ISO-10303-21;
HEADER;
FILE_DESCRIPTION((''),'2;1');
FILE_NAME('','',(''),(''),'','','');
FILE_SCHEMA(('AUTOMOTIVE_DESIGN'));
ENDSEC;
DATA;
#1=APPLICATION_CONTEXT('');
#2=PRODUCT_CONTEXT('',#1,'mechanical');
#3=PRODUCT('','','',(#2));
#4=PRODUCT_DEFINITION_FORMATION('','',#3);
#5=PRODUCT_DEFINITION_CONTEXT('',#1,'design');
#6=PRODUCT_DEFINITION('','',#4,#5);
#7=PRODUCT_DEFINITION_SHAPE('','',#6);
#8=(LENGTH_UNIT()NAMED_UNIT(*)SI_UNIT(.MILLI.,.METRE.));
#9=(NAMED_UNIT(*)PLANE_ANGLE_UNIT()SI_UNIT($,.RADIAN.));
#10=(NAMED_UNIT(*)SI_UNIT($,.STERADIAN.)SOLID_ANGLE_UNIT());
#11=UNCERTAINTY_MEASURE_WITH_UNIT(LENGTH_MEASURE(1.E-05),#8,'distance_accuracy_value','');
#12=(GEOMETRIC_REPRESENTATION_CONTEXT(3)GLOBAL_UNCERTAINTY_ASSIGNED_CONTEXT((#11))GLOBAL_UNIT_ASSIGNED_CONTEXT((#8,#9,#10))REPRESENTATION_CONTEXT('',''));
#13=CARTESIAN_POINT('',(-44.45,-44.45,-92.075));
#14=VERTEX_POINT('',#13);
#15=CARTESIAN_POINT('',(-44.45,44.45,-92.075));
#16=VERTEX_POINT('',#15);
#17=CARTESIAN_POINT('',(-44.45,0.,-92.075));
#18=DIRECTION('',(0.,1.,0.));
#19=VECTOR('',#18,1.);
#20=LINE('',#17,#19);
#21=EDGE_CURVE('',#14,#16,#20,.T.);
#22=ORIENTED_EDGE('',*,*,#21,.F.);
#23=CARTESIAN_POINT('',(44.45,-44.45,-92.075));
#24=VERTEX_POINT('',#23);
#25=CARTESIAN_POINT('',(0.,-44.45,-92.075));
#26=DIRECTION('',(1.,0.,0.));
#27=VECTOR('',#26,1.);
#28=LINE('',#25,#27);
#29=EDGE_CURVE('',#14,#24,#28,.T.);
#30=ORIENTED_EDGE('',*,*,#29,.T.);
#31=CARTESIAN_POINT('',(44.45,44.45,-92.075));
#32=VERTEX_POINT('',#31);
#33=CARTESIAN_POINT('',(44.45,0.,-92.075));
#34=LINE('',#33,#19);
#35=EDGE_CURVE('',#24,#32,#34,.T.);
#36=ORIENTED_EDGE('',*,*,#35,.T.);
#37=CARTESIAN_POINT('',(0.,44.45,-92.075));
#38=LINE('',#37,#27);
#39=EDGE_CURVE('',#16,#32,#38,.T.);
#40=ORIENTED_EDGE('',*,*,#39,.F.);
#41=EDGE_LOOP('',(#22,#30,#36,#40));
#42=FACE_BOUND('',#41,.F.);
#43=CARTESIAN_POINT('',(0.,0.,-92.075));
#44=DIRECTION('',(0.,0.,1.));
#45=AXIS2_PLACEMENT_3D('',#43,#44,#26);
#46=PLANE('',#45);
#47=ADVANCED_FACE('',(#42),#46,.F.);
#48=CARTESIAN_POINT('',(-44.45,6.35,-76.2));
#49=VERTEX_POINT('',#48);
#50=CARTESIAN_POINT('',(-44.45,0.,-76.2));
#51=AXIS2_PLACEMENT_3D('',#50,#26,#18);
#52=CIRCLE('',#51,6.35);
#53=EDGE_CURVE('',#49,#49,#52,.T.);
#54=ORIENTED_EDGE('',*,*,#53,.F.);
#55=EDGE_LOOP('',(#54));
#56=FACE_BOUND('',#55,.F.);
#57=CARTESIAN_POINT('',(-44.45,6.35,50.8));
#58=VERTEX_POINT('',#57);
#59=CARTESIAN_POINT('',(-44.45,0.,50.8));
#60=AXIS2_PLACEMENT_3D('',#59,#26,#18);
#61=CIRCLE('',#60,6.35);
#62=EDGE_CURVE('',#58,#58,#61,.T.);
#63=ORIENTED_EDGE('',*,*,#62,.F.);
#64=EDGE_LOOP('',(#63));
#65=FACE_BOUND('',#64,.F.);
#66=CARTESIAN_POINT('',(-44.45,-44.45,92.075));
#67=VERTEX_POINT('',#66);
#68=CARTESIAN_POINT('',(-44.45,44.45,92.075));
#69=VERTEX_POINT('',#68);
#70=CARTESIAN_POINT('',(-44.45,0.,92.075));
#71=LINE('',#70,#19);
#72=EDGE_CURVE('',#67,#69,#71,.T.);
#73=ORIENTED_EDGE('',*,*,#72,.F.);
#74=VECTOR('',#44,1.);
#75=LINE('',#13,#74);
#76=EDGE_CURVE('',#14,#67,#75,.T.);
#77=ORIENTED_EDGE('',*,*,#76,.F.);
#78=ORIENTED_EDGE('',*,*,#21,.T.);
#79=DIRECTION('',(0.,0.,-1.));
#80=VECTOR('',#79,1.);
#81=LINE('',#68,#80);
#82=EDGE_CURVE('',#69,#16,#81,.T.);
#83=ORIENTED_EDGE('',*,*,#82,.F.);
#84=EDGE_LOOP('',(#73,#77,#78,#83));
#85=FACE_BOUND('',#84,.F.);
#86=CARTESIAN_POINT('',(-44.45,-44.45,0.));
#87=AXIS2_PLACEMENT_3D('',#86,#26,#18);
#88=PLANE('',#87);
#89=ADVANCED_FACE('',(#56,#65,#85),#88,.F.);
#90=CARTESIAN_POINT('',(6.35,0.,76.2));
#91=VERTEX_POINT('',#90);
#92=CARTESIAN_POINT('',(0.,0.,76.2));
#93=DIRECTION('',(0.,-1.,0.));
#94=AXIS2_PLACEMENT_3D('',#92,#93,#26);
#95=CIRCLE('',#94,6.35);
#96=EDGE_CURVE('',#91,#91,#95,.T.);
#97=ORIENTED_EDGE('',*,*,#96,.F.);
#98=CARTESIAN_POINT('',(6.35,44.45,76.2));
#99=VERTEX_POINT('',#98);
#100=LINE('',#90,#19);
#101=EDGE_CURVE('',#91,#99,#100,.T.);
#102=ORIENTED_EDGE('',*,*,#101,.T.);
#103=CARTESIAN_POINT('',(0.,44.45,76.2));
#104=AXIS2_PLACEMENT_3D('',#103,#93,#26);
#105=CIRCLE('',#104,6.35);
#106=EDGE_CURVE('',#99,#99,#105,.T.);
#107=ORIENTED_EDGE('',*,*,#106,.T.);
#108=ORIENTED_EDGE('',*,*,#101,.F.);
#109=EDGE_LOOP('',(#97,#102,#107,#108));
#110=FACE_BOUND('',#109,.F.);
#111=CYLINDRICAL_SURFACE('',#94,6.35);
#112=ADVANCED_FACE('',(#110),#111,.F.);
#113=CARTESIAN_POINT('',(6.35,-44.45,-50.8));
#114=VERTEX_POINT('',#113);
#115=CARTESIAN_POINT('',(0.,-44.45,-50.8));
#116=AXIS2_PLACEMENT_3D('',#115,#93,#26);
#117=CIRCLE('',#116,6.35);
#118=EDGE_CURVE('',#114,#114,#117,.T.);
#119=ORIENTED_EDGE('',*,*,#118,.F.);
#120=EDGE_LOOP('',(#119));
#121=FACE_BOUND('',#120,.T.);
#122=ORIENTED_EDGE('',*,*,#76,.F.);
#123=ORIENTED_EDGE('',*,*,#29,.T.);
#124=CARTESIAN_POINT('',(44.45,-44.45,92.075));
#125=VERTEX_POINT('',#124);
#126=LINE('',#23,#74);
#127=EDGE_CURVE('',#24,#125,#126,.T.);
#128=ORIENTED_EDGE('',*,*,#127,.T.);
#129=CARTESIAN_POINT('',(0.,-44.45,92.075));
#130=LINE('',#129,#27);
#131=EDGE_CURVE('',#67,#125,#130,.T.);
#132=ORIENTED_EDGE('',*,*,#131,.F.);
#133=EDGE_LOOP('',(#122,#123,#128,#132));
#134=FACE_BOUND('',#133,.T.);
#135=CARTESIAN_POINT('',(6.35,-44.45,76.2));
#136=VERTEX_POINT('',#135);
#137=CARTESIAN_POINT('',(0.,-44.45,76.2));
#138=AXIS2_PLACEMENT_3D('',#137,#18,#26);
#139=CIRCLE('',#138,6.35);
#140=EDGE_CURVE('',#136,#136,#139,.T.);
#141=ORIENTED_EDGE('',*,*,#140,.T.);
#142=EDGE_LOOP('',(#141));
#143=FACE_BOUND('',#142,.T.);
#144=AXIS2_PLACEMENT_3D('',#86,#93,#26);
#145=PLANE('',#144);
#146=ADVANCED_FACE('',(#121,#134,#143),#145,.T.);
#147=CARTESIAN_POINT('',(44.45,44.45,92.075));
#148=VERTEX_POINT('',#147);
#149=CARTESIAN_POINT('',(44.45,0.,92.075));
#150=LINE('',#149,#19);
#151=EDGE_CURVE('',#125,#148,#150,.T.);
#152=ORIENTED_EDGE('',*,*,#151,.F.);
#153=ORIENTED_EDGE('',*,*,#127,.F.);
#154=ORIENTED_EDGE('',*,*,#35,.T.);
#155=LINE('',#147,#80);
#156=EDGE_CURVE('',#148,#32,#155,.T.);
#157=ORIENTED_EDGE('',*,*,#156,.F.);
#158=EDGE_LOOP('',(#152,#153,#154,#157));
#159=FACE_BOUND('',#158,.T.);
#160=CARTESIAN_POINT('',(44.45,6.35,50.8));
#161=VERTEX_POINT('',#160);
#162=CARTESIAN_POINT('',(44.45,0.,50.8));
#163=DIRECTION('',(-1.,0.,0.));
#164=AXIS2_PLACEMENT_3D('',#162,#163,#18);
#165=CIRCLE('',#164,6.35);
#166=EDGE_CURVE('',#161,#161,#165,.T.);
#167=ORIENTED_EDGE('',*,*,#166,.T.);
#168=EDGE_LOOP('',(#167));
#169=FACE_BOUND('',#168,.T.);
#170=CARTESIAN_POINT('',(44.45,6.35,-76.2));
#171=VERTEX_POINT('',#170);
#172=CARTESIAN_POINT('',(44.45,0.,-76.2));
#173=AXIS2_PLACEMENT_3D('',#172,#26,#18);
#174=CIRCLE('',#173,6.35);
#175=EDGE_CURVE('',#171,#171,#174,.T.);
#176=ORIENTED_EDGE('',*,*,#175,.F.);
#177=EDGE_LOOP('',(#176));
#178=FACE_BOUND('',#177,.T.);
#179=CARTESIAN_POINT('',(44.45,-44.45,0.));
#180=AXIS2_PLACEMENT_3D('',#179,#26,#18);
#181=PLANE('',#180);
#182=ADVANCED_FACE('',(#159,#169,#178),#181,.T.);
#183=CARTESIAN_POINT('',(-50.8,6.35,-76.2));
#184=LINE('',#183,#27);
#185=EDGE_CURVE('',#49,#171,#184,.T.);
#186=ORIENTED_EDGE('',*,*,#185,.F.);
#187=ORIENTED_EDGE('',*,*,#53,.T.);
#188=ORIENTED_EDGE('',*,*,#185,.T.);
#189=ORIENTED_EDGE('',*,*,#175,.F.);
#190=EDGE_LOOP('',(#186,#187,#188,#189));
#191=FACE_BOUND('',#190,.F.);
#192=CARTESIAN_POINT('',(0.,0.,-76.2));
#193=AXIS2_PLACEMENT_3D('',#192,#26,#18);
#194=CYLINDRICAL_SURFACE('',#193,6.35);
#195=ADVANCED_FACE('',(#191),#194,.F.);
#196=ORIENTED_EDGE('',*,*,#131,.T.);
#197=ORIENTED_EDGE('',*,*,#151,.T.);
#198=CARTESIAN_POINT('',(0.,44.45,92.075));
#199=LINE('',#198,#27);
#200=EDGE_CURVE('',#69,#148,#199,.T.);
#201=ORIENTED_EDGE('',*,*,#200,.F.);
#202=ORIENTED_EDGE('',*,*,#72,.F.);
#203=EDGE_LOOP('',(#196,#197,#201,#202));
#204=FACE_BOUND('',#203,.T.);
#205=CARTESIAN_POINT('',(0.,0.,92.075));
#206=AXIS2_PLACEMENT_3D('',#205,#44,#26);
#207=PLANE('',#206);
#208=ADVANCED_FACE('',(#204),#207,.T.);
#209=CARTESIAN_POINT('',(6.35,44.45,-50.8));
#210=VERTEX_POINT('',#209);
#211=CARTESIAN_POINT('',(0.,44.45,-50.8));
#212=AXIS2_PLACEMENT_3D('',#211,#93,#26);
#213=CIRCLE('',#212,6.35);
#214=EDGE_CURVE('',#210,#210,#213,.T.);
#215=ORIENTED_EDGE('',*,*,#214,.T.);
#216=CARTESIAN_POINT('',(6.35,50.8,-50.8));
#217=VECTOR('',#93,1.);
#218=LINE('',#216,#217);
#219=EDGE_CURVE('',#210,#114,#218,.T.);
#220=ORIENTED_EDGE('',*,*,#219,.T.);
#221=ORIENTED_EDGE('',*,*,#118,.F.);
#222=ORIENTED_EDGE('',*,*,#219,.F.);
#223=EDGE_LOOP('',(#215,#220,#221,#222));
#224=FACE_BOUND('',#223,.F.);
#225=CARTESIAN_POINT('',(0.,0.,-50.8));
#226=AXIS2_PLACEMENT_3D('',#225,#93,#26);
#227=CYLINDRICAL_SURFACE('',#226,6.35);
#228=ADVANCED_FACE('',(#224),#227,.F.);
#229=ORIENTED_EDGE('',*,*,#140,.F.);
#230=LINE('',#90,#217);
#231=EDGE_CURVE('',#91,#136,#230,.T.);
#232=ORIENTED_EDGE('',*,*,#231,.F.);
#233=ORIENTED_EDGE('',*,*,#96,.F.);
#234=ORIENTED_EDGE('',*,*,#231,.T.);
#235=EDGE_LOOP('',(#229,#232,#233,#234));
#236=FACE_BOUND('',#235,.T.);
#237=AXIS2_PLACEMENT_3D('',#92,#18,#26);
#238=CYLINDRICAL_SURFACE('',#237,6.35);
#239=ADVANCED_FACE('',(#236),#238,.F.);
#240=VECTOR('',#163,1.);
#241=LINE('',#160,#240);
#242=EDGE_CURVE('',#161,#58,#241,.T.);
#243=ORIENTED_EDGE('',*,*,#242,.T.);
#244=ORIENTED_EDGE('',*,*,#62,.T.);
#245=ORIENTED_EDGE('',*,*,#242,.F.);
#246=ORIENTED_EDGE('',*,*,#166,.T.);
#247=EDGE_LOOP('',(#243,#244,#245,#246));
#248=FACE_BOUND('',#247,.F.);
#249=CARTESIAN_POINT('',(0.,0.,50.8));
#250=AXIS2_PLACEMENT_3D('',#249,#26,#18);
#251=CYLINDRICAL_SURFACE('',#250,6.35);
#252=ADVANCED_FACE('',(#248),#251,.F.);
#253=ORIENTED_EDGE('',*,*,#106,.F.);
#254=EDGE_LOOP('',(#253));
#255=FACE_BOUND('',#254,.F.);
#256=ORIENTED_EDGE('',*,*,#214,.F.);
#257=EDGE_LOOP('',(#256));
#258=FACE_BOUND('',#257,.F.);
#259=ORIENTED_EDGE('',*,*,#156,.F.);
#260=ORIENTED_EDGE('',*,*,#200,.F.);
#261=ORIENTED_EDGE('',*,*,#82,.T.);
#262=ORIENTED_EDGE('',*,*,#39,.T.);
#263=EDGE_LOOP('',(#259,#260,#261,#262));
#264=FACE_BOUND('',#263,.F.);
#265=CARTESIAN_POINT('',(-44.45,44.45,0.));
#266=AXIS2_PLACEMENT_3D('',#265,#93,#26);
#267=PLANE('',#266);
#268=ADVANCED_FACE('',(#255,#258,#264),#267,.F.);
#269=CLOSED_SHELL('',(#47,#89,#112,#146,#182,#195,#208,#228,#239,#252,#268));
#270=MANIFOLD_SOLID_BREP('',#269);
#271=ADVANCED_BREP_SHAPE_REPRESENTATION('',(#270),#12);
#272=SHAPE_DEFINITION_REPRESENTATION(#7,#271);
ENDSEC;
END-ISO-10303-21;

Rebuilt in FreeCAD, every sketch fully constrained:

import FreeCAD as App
import Part
import Sketcher
Q = App.Units.Quantity

doc = App.newDocument("Part")
body = doc.addObject("PartDesign::Body", "Body")

# Sketch on XY plane
sketch1 = body.newObject("Sketcher::SketchObject", "Sketch")
sketch1.AttachmentSupport = (doc.getObject("XY_Plane"), [""])
sketch1.MapMode = "FlatFace"
sketch1.addGeometry(Part.LineSegment(App.Vector(-44, 44, 0), App.Vector(-44, -44, 0)), False)
sketch1.addGeometry(Part.LineSegment(App.Vector(-44, -44, 0), App.Vector(44, -44, 0)), False)
sketch1.addGeometry(Part.LineSegment(App.Vector(44, -44, 0), App.Vector(44, 44, 0)), False)
sketch1.addGeometry(Part.LineSegment(App.Vector(44, 44, 0), App.Vector(-44, 44, 0)), False)
sketch1.addConstraint(Sketcher.Constraint("Coincident", 0, 2, 1, 1))
sketch1.addConstraint(Sketcher.Constraint("Coincident", 1, 2, 2, 1))
sketch1.addConstraint(Sketcher.Constraint("Coincident", 2, 2, 3, 1))
sketch1.addConstraint(Sketcher.Constraint("Coincident", 3, 2, 0, 1))
sketch1.addConstraint(Sketcher.Constraint("Vertical", 0))
sketch1.addConstraint(Sketcher.Constraint("Horizontal", 1))
sketch1.addConstraint(Sketcher.Constraint("Vertical", 2))
sketch1.addConstraint(Sketcher.Constraint("Horizontal", 3))
sketch1.addConstraint(Sketcher.Constraint("Symmetric", 0, 2, 2, 2, -1, 1))
sketch1.addConstraint(Sketcher.Constraint("Equal", 3, 0))
sketch1.addConstraint(Sketcher.Constraint("DistanceX", 1, 1, 1, 2, Q("3.5 in")))
pad1 = body.newObject("PartDesign::Pad", "Pad")
pad1.Profile = sketch1
pad1.Length = Q("7.25 in")
pad1.Midplane = True

# Sketch on XZ plane
sketch2 = body.newObject("Sketcher::SketchObject", "Sketch001")
sketch2.AttachmentSupport = (doc.getObject("XZ_Plane"), [""])
sketch2.MapMode = "FlatFace"
sketch2.addGeometry(Part.Circle(App.Vector(0, 76, 0), App.Vector(0, 0, 1), 6), False)
sketch2.addGeometry(Part.Circle(App.Vector(0, -51, 0), App.Vector(0, 0, 1), 6), False)
sketch2.addConstraint(Sketcher.Constraint("Equal", 0, 1))
sketch2.addConstraint(Sketcher.Constraint("PointOnObject", 0, 3, -2))
sketch2.addConstraint(Sketcher.Constraint("PointOnObject", 1, 3, -2))
sketch2.addConstraint(Sketcher.Constraint("Diameter", 0, Q("0.5 in")))
sketch2.addConstraint(Sketcher.Constraint("DistanceY", -1, 1, 0, 3, Q("3 in")))
sketch2.addConstraint(Sketcher.Constraint("DistanceY", 1, 3, -1, 1, Q("2 in")))
pocket1 = body.newObject("PartDesign::Pocket", "Pocket")
pocket1.Profile = sketch2
pocket1.Length = Q("4 in")
pocket1.Midplane = True

# Sketch on YZ plane
sketch3 = body.newObject("Sketcher::SketchObject", "Sketch002")
sketch3.AttachmentSupport = (doc.getObject("YZ_Plane"), [""])
sketch3.MapMode = "FlatFace"
sketch3.addGeometry(Part.Circle(App.Vector(0, 51, 0), App.Vector(0, 0, 1), 6), False)
sketch3.addGeometry(Part.Circle(App.Vector(0, -76, 0), App.Vector(0, 0, 1), 6), False)
sketch3.addConstraint(Sketcher.Constraint("Equal", 0, 1))
sketch3.addConstraint(Sketcher.Constraint("PointOnObject", 0, 3, -2))
sketch3.addConstraint(Sketcher.Constraint("PointOnObject", 1, 3, -2))
sketch3.addConstraint(Sketcher.Constraint("Diameter", 0, Q("0.5 in")))
sketch3.addConstraint(Sketcher.Constraint("DistanceY", -1, 1, 0, 3, Q("2 in")))
sketch3.addConstraint(Sketcher.Constraint("DistanceY", 1, 3, -1, 1, Q("3 in")))
pocket2 = body.newObject("PartDesign::Pocket", "Pocket001")
pocket2.Profile = sketch3
pocket2.Length = Q("4 in")
pocket2.Midplane = True

doc.recompute()
